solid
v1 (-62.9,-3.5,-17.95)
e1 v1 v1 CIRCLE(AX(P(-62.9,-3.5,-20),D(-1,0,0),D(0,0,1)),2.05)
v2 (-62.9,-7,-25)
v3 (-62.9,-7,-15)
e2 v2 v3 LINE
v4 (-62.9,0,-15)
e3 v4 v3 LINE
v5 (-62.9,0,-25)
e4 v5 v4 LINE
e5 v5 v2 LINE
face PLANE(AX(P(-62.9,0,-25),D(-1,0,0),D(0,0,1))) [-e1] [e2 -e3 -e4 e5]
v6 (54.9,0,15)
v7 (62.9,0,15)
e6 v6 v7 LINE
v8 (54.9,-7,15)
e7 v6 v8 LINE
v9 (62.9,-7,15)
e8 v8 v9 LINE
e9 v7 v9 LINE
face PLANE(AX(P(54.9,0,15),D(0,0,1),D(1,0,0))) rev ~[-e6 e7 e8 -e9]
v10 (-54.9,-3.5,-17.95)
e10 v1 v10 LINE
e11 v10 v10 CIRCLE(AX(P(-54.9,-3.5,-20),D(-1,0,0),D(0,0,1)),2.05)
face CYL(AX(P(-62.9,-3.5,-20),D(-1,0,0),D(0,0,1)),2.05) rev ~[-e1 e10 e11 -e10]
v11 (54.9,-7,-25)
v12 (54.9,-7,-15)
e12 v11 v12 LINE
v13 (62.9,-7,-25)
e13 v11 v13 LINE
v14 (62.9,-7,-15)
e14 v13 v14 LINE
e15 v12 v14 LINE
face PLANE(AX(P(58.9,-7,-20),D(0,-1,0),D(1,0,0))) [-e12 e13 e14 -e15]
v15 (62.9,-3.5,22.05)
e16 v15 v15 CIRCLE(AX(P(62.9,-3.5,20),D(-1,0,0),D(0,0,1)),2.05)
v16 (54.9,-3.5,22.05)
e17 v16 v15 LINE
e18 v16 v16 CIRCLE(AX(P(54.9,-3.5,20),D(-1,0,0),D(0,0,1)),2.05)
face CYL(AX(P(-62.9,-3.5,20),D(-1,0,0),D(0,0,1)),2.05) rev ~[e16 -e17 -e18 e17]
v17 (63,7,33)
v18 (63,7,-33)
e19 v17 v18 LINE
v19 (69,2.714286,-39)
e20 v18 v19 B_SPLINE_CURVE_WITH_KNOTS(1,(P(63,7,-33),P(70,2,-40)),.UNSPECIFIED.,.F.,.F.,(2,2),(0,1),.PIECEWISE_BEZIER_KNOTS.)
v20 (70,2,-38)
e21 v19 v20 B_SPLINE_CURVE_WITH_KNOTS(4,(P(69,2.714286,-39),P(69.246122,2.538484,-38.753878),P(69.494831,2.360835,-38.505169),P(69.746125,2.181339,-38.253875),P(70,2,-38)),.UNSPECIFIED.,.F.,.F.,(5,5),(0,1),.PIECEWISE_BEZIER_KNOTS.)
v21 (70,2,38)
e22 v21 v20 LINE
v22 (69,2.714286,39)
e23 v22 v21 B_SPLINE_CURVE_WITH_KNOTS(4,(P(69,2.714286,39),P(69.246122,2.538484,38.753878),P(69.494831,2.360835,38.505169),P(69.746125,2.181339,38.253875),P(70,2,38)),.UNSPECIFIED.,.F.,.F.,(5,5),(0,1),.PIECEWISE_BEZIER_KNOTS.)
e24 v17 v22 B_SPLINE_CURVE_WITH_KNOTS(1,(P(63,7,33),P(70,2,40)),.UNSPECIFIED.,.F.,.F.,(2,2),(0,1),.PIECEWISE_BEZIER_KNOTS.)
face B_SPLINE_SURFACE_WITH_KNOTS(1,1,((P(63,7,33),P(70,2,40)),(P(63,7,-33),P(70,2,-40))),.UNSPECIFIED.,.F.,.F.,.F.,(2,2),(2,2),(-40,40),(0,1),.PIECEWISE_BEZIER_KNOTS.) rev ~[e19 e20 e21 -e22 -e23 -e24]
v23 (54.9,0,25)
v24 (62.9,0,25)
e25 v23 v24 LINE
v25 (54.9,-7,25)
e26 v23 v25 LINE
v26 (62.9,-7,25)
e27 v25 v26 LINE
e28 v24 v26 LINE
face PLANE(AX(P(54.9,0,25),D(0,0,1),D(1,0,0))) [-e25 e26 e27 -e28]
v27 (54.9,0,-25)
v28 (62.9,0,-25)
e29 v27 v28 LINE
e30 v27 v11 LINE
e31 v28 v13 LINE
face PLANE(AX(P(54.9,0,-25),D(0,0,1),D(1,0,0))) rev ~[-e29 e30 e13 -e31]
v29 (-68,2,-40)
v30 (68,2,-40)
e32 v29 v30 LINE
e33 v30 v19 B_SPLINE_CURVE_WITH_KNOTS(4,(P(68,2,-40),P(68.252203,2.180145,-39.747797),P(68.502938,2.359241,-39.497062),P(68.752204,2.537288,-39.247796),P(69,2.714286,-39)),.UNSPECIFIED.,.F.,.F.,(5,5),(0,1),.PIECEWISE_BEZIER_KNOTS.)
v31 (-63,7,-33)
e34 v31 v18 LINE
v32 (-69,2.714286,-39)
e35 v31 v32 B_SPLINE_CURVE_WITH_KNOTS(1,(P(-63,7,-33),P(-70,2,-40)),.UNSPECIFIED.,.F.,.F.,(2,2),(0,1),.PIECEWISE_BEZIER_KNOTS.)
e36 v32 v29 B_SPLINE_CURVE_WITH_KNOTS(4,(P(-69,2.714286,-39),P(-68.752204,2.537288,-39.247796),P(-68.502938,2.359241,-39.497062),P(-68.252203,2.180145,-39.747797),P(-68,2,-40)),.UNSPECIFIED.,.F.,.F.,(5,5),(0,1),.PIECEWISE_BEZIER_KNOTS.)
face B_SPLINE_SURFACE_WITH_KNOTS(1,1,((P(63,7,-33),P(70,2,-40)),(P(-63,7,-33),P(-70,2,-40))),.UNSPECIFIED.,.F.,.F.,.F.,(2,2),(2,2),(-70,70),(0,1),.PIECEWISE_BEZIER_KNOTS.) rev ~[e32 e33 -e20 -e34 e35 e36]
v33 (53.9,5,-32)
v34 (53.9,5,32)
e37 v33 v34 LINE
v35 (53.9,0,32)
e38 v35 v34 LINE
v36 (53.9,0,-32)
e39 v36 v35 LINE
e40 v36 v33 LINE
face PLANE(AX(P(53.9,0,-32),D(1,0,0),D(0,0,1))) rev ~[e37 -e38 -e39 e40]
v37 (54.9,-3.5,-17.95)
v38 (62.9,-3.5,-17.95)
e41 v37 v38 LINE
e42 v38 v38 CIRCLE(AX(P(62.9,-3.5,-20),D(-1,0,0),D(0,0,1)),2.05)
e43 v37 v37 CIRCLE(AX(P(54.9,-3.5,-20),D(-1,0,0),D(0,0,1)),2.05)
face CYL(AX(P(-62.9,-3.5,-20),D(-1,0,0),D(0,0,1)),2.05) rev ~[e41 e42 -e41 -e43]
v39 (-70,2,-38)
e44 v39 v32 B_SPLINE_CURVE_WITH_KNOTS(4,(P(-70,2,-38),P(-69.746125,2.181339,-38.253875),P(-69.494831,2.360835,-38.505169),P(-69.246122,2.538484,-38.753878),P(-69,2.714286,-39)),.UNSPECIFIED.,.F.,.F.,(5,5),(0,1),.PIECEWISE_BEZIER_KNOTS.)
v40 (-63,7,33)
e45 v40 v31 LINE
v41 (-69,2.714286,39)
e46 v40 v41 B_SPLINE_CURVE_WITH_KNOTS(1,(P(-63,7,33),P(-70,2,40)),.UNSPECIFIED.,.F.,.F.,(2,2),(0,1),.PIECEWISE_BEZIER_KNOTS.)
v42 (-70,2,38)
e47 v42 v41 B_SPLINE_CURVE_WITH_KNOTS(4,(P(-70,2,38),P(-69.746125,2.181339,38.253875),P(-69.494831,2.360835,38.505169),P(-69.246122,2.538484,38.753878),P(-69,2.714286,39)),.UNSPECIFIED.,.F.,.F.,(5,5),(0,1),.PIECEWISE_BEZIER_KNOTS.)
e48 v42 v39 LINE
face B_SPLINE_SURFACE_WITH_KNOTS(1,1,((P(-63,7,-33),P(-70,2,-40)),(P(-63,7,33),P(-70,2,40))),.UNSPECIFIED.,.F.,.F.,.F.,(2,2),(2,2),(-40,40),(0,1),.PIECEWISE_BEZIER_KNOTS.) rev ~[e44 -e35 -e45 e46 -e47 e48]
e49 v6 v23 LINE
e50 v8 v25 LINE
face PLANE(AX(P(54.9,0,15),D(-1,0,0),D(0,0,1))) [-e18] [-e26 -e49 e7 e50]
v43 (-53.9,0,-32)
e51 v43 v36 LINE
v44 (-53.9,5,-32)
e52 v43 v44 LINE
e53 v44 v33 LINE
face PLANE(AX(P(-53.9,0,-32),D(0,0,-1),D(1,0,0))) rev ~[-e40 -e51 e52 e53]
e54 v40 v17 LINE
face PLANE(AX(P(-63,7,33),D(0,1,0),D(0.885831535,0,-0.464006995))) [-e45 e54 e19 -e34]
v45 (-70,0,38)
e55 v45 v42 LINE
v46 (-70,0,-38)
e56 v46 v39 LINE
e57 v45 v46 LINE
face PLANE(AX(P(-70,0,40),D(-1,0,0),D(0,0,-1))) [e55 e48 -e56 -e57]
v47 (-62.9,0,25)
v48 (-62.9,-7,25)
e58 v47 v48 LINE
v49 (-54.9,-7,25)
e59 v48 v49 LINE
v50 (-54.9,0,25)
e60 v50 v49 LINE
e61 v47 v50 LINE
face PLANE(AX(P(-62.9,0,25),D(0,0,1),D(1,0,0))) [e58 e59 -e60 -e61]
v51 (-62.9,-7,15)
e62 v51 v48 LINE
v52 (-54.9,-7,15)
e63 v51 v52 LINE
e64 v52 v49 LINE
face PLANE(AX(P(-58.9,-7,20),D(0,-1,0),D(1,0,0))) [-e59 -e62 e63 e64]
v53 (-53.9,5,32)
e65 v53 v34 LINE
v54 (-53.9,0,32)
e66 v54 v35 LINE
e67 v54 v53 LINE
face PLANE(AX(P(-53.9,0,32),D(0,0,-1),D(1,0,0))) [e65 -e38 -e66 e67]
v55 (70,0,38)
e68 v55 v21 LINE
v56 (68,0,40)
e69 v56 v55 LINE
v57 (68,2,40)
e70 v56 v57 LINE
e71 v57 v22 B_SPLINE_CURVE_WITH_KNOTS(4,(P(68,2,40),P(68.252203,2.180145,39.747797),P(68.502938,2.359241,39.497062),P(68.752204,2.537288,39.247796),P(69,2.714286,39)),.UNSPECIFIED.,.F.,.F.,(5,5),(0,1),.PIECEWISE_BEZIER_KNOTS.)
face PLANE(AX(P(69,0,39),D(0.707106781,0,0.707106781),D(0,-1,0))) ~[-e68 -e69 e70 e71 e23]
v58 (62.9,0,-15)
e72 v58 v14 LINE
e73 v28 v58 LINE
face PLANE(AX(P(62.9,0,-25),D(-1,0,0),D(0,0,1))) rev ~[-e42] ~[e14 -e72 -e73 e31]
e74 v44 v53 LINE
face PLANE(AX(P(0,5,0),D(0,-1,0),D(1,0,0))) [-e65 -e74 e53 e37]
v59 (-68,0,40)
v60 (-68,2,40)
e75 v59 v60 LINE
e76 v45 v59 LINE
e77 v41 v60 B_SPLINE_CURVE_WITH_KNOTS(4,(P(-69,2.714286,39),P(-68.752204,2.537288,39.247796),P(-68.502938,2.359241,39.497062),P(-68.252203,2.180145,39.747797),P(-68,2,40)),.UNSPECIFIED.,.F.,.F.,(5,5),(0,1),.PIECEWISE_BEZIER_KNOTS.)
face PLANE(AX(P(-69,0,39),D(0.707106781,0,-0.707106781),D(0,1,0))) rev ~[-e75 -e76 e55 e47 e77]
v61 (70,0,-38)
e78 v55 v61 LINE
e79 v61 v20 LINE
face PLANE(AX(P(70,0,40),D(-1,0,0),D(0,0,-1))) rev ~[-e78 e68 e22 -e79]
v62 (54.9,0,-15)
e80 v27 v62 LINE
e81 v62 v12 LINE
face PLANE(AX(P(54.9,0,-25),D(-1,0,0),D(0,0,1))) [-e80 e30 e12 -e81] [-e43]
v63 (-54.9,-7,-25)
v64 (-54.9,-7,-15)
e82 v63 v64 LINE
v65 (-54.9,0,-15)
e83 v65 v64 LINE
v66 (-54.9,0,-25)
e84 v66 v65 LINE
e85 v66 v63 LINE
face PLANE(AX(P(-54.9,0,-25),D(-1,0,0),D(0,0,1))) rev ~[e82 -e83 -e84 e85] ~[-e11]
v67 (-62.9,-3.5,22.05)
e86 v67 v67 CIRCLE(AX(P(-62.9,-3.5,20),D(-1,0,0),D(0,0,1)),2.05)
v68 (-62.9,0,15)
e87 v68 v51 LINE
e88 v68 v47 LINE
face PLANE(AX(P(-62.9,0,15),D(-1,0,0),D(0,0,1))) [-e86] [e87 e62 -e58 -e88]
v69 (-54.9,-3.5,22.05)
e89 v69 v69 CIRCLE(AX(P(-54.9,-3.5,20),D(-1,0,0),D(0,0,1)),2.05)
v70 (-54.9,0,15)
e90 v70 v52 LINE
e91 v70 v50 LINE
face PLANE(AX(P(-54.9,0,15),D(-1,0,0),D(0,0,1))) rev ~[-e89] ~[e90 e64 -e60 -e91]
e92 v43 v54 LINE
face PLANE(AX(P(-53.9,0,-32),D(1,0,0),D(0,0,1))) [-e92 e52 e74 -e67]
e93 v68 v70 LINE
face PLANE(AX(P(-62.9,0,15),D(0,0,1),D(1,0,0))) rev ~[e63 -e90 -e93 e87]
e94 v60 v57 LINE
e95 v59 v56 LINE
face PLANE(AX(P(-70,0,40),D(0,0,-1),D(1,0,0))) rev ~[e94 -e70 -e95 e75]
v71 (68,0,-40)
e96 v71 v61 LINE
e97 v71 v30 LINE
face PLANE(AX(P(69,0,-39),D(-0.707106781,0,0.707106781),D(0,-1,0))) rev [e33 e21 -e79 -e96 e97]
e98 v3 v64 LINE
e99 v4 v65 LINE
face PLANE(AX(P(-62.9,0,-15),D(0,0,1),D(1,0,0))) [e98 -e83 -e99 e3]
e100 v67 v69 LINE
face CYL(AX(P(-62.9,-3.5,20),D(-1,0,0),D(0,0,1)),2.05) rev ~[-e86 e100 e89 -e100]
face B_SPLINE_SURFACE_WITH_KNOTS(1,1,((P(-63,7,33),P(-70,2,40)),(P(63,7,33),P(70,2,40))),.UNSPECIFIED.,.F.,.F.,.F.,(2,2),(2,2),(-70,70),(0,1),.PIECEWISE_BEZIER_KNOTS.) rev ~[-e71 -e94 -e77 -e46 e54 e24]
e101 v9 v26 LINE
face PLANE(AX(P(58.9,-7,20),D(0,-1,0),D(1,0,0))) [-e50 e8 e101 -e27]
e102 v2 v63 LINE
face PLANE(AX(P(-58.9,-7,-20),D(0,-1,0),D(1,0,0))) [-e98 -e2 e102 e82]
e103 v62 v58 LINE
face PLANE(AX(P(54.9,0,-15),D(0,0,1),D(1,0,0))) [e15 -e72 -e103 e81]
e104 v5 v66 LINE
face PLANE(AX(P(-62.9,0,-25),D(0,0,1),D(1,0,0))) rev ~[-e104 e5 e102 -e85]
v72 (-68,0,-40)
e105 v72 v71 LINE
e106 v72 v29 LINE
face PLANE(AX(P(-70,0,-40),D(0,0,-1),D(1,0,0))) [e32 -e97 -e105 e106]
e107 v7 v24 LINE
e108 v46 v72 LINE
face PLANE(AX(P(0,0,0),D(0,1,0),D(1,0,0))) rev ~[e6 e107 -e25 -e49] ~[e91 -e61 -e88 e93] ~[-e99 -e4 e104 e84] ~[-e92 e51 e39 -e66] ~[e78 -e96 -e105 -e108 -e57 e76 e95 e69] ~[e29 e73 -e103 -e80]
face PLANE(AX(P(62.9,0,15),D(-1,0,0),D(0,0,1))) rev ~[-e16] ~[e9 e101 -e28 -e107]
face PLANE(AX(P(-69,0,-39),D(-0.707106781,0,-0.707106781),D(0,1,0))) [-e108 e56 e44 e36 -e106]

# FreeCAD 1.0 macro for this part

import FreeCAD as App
import Part
import Sketcher

V = App.Vector
Q = App.Units.Quantity


def edges_at(feature, points):
    """Names of the edges that pass closest to the given points."""
    edges = feature.Shape.Edges
    near = lambda p: min(range(len(edges)), key=lambda i: edges[i].distToShape(Part.Vertex(*p))[0])
    return sorted({f"Edge{near(p) + 1}" for p in points})

doc = App.newDocument("Part")
body = doc.addObject("PartDesign::Body", "Body")

sketch1 = body.newObject("Sketcher::SketchObject", "Sketch")
sketch1.AttachmentSupport = (doc.getObject("XZ_Plane"), [""])
sketch1.MapMode = "FlatFace"
sketch1.addGeometry([
    Part.LineSegment(V(-70, -40, 0), V(-70, 40, 0)),
    Part.LineSegment(V(-70, 40, 0), V(70, 40, 0)),
    Part.LineSegment(V(70, 40, 0), V(70, -40, 0)),
    Part.LineSegment(V(70, -40, 0), V(-70, -40, 0)),
], False)
sketch1.addConstraint([
    Sketcher.Constraint("Coincident", 0, 2, 1, 1),
    Sketcher.Constraint("Coincident", 1, 2, 2, 1),
    Sketcher.Constraint("Coincident", 2, 2, 3, 1),
    Sketcher.Constraint("Coincident", 3, 2, 0, 1),
    Sketcher.Constraint("Vertical", 0),
    Sketcher.Constraint("Horizontal", 1),
    Sketcher.Constraint("Vertical", 2),
    Sketcher.Constraint("Horizontal", 3),
    Sketcher.Constraint("Symmetric", 0, 2, 2, 2, -1, 1),
    Sketcher.Constraint("DistanceX", 1, 1, 1, 2, Q("140 mm")),
    Sketcher.Constraint("DistanceY", 0, 1, 0, 2, Q("80 mm")),
])
pad1 = body.newObject("PartDesign::Pad", "Pad")
pad1.Profile = sketch1
pad1.Length = 2
pad1.Reversed = True

sketch2 = body.newObject("Sketcher::SketchObject", "Sketch001")
sketch2.AttachmentSupport = (doc.getObject("XZ_Plane"), [""])
sketch2.MapMode = "FlatFace"
sketch2.AttachmentOffset = App.Placement(V(0, 0, -7), App.Rotation())
sketch2.addGeometry([
    Part.LineSegment(V(-63, -33, 0), V(-63, 33, 0)),
    Part.LineSegment(V(-63, 33, 0), V(63, 33, 0)),
    Part.LineSegment(V(63, 33, 0), V(63, -33, 0)),
    Part.LineSegment(V(63, -33, 0), V(-63, -33, 0)),
], False)
sketch2.addConstraint([
    Sketcher.Constraint("Coincident", 0, 2, 1, 1),
    Sketcher.Constraint("Coincident", 1, 2, 2, 1),
    Sketcher.Constraint("Coincident", 2, 2, 3, 1),
    Sketcher.Constraint("Coincident", 3, 2, 0, 1),
    Sketcher.Constraint("Vertical", 0),
    Sketcher.Constraint("Horizontal", 1),
    Sketcher.Constraint("Vertical", 2),
    Sketcher.Constraint("Horizontal", 3),
    Sketcher.Constraint("Symmetric", 0, 2, 2, 2, -1, 1),
    Sketcher.Constraint("DistanceX", 1, 1, 1, 2, Q("126 mm")),
    Sketcher.Constraint("DistanceY", 0, 1, 0, 2, Q("66 mm")),
])

sketch3 = body.newObject("Sketcher::SketchObject", "Sketch002")
sketch3.AttachmentSupport = (doc.getObject("XZ_Plane"), [""])
sketch3.MapMode = "FlatFace"
sketch3.AttachmentOffset = App.Placement(V(0, 0, -2), App.Rotation())
sketch3.addGeometry([
    Part.LineSegment(V(-70, -40, 0), V(-70, 40, 0)),
    Part.LineSegment(V(-70, 40, 0), V(70, 40, 0)),
    Part.LineSegment(V(70, 40, 0), V(70, -40, 0)),
    Part.LineSegment(V(70, -40, 0), V(-70, -40, 0)),
], False)
sketch3.addConstraint([
    Sketcher.Constraint("Coincident", 0, 2, 1, 1),
    Sketcher.Constraint("Coincident", 1, 2, 2, 1),
    Sketcher.Constraint("Coincident", 2, 2, 3, 1),
    Sketcher.Constraint("Coincident", 3, 2, 0, 1),
    Sketcher.Constraint("Vertical", 0),
    Sketcher.Constraint("Horizontal", 1),
    Sketcher.Constraint("Vertical", 2),
    Sketcher.Constraint("Horizontal", 3),
    Sketcher.Constraint("Symmetric", 0, 2, 2, 2, -1, 1),
    Sketcher.Constraint("DistanceX", 1, 1, 1, 2, Q("140 mm")),
    Sketcher.Constraint("DistanceY", 0, 1, 0, 2, Q("80 mm")),
])

additiveloft = body.newObject("PartDesign::AdditiveLoft", "AdditiveLoft")
additiveloft.Profile = sketch2
additiveloft.Sections = [sketch3]
doc.recompute()

chamfer = body.newObject("PartDesign::Chamfer", "Chamfer")
chamfer.Base = (additiveloft, edges_at(additiveloft, [
    (70, 1, 40),
    (-70, 1, 40),
    (-70, 1, -40),
    (70, 1, -40),
]))
chamfer.Size = 2

sketch4 = body.newObject("Sketcher::SketchObject", "Sketch003")
sketch4.AttachmentSupport = (doc.getObject("XZ_Plane"), [""])
sketch4.MapMode = "FlatFace"
sketch4.addGeometry([
    Part.LineSegment(V(-62.9, 25, 0), V(-62.9, 15, 0)),
    Part.LineSegment(V(-62.9, 15, 0), V(-54.9, 15, 0)),
    Part.LineSegment(V(-54.9, 15, 0), V(-54.9, 25, 0)),
    Part.LineSegment(V(-54.9, 25, 0), V(-62.9, 25, 0)),
    Part.LineSegment(V(-62.9, -15, 0), V(-62.9, -25, 0)),
    Part.LineSegment(V(-62.9, -25, 0), V(-54.9, -25, 0)),
    Part.LineSegment(V(-54.9, -25, 0), V(-54.9, -15, 0)),
    Part.LineSegment(V(-54.9, -15, 0), V(-62.9, -15, 0)),
    Part.LineSegment(V(54.9, -15, 0), V(54.9, -25, 0)),
    Part.LineSegment(V(54.9, -25, 0), V(62.9, -25, 0)),
    Part.LineSegment(V(62.9, -25, 0), V(62.9, -15, 0)),
    Part.LineSegment(V(62.9, -15, 0), V(54.9, -15, 0)),
    Part.LineSegment(V(54.9, 25, 0), V(54.9, 15, 0)),
    Part.LineSegment(V(54.9, 15, 0), V(62.9, 15, 0)),
    Part.LineSegment(V(62.9, 15, 0), V(62.9, 25, 0)),
    Part.LineSegment(V(62.9, 25, 0), V(54.9, 25, 0)),
], False)
sketch4.addConstraint([
    Sketcher.Constraint("Coincident", 0, 2, 1, 1),
    Sketcher.Constraint("Coincident", 1, 2, 2, 1),
    Sketcher.Constraint("Coincident", 2, 2, 3, 1),
    Sketcher.Constraint("Coincident", 3, 2, 0, 1),
    Sketcher.Constraint("Coincident", 4, 2, 5, 1),
    Sketcher.Constraint("Coincident", 5, 2, 6, 1),
    Sketcher.Constraint("Coincident", 6, 2, 7, 1),
    Sketcher.Constraint("Coincident", 7, 2, 4, 1),
    Sketcher.Constraint("Coincident", 8, 2, 9, 1),
    Sketcher.Constraint("Coincident", 9, 2, 10, 1),
    Sketcher.Constraint("Coincident", 10, 2, 11, 1),
    Sketcher.Constraint("Coincident", 11, 2, 8, 1),
    Sketcher.Constraint("Coincident", 12, 2, 13, 1),
    Sketcher.Constraint("Coincident", 13, 2, 14, 1),
    Sketcher.Constraint("Coincident", 14, 2, 15, 1),
    Sketcher.Constraint("Coincident", 15, 2, 12, 1),
    Sketcher.Constraint("Vertical", 0),
    Sketcher.Constraint("Horizontal", 1),
    Sketcher.Constraint("Vertical", 2),
    Sketcher.Constraint("Horizontal", 3),
    Sketcher.Constraint("Vertical", 4),
    Sketcher.Constraint("Horizontal", 5),
    Sketcher.Constraint("Vertical", 6),
    Sketcher.Constraint("Horizontal", 7),
    Sketcher.Constraint("Vertical", 8),
    Sketcher.Constraint("Horizontal", 9),
    Sketcher.Constraint("Vertical", 10),
    Sketcher.Constraint("Horizontal", 11),
    Sketcher.Constraint("Vertical", 12),
    Sketcher.Constraint("Horizontal", 13),
    Sketcher.Constraint("Vertical", 14),
    Sketcher.Constraint("Horizontal", 15),
    Sketcher.Constraint("Symmetric", 2, 2, 8, 2, -1, 1),
    Sketcher.Constraint("Symmetric", 0, 2, 10, 2, -1, 1),
    Sketcher.Constraint("Symmetric", 6, 2, 12, 2, -1, 1),
    Sketcher.Constraint("Symmetric", 4, 2, 14, 2, -1, 1),
    Sketcher.Constraint("Symmetric", 5, 2, 8, 2, -2),
    Sketcher.Constraint("Symmetric", 7, 2, 10, 2, -2),
    Sketcher.Constraint("DistanceX", 1, 1, 1, 2, Q("8 mm")),
    Sketcher.Constraint("DistanceY", 0, 2, 0, 1, Q("10 mm")),
    Sketcher.Constraint("DistanceY", -1, 1, 0, 2, Q("15 mm")),
    Sketcher.Constraint("DistanceX", 0, 2, -1, 1, Q("62.9 mm")),
])
pad2 = body.newObject("PartDesign::Pad", "Pad001")
pad2.Profile = sketch4
pad2.Length = 7

sketch5 = body.newObject("Sketcher::SketchObject", "Sketch004")
sketch5.AttachmentSupport = (doc.getObject("YZ_Plane"), [""])
sketch5.MapMode = "FlatFace"
sketch5.AttachmentOffset = App.Placement(V(0, 0, -62.9), App.Rotation())
sketch5.addGeometry([
    Part.Circle(V(-3.5, -20, 0), V(0, 0, 1), 2.05),
    Part.Circle(V(-3.5, 20, 0), V(0, 0, 1), 2.05),
], False)
sketch5.addConstraint([
    Sketcher.Constraint("Equal", 0, 1),
    Sketcher.Constraint("Symmetric", 0, 3, 1, 3, -1),
    Sketcher.Constraint("Diameter", 0, Q("4.1 mm")),
    Sketcher.Constraint("DistanceY", 0, 3, -1, 1, Q("20 mm")),
    Sketcher.Constraint("DistanceX", 0, 3, -1, 1, Q("3.5 mm")),
])
pocket1 = body.newObject("PartDesign::Pocket", "Pocket")
pocket1.Profile = sketch5
pocket1.Type = "ThroughAll"
pocket1.Reversed = True

sketch6 = body.newObject("Sketcher::SketchObject", "Sketch005")
sketch6.AttachmentSupport = (doc.getObject("XZ_Plane"), [""])
sketch6.MapMode = "FlatFace"
sketch6.addGeometry([
    Part.LineSegment(V(-53.9, 32, 0), V(-53.9, -32, 0)),
    Part.LineSegment(V(-53.9, -32, 0), V(53.9, -32, 0)),
    Part.LineSegment(V(53.9, -32, 0), V(53.9, 32, 0)),
    Part.LineSegment(V(53.9, 32, 0), V(-53.9, 32, 0)),
], False)
sketch6.addConstraint([
    Sketcher.Constraint("Coincident", 0, 2, 1, 1),
    Sketcher.Constraint("Coincident", 1, 2, 2, 1),
    Sketcher.Constraint("Coincident", 2, 2, 3, 1),
    Sketcher.Constraint("Coincident", 3, 2, 0, 1),
    Sketcher.Constraint("Vertical", 0),
    Sketcher.Constraint("Horizontal", 1),
    Sketcher.Constraint("Vertical", 2),
    Sketcher.Constraint("Horizontal", 3),
    Sketcher.Constraint("Symmetric", 0, 2, 2, 2, -1, 1),
    Sketcher.Constraint("DistanceY", 0, 2, 0, 1, Q("64 mm")),
    Sketcher.Constraint("DistanceX", 1, 1, 1, 2, Q("107.8 mm")),
])
pocket2 = body.newObject("PartDesign::Pocket", "Pocket001")
pocket2.Profile = sketch6
pocket2.Length = 5

doc.recompute()
